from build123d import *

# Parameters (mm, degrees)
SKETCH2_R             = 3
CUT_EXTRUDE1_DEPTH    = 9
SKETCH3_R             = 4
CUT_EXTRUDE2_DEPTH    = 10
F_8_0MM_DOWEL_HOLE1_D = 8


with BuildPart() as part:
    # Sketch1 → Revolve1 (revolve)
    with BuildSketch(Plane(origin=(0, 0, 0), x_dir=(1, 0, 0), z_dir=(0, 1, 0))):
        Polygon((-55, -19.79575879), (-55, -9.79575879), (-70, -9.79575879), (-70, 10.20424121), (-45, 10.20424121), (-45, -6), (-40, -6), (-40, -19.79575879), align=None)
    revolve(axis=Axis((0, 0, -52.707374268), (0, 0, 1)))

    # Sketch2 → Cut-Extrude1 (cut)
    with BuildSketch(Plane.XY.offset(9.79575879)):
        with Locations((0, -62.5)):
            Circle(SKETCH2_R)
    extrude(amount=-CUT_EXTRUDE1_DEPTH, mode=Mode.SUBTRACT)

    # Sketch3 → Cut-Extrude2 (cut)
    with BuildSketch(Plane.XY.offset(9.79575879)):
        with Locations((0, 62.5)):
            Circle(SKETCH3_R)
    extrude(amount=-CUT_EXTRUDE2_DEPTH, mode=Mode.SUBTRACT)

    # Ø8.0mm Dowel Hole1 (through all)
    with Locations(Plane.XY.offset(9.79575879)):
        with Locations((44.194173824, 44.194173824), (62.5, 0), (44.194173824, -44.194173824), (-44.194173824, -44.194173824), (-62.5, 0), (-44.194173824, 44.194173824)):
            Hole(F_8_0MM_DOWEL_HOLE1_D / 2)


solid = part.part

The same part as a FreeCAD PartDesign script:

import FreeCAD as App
import Part
import Sketcher

V = App.Vector
Q = App.Units.Quantity

doc = App.newDocument("Part")
body = doc.addObject("PartDesign::Body", "Body")

# Sketch on XZ plane
sketch1 = body.newObject("Sketcher::SketchObject", "Sketch")
sketch1.AttachmentSupport = (doc.getObject("XZ_Plane"), [""])
sketch1.MapMode = "FlatFace"
sketch1.addGeometry([
    Part.LineSegment(V(-55, 10, 0), V(-55, 20, 0)),  # 0
    Part.LineSegment(V(-55, 20, 0), V(-40, 20, 0)),  # 1
    Part.LineSegment(V(-40, 20, 0), V(-40, 6, 0)),  # 2
    Part.LineSegment(V(-40, 6, 0), V(-45, 6, 0)),  # 3
    Part.LineSegment(V(-45, 6, 0), V(-45, -10, 0)),  # 4
    Part.LineSegment(V(-45, -10, 0), V(-70, -10, 0)),  # 5
    Part.LineSegment(V(-70, -10, 0), V(-70, 10, 0)),  # 6
    Part.LineSegment(V(-70, 10, 0), V(-55, 10, 0)),  # 7
], False)
sketch1.addConstraint([
    Sketcher.Constraint("Coincident", 0, 2, 1, 1),
    Sketcher.Constraint("Coincident", 1, 2, 2, 1),
    Sketcher.Constraint("Coincident", 2, 2, 3, 1),
    Sketcher.Constraint("Coincident", 3, 2, 4, 1),
    Sketcher.Constraint("Coincident", 4, 2, 5, 1),
    Sketcher.Constraint("Coincident", 5, 2, 6, 1),
    Sketcher.Constraint("Coincident", 6, 2, 7, 1),
    Sketcher.Constraint("Coincident", 7, 2, 0, 1),
    Sketcher.Constraint("Vertical", 0),
    Sketcher.Constraint("Horizontal", 1),
    Sketcher.Constraint("Vertical", 2),
    Sketcher.Constraint("Horizontal", 3),
    Sketcher.Constraint("Vertical", 4),
    Sketcher.Constraint("Horizontal", 5),
    Sketcher.Constraint("Vertical", 6),
    Sketcher.Constraint("Horizontal", 7),
    Sketcher.Constraint("Equal", 1, 7),
    Sketcher.Constraint("DistanceX", 1, 1, 1, 2, Q("15 mm")),
    Sketcher.Constraint("DistanceX", 3, 2, 3, 1, Q("5 mm")),
    Sketcher.Constraint("DistanceY", 0, 1, 0, 2, Q("10 mm")),
    Sketcher.Constraint("DistanceY", 6, 1, 6, 2, Q("20 mm")),
    Sketcher.Constraint("DistanceX", 0, 2, -1, 1, Q("55 mm")),
    Sketcher.Constraint("DistanceY", -1, 1, 2, 2, Q("6 mm")),
    Sketcher.Constraint("DistanceY", 2, 2, 2, 1, Q("13.795759 mm")),
])
revolution = body.newObject("PartDesign::Revolution", "Revolution")
revolution.Profile = sketch1
revolution.ReferenceAxis = (sketch1, ["V_Axis"])
revolution.Angle = 360

# Sketch on XY plane
sketch2 = body.newObject("Sketcher::SketchObject", "Sketch001")
sketch2.AttachmentSupport = (doc.getObject("XY_Plane"), [""])
sketch2.MapMode = "FlatFace"
sketch2.AttachmentOffset = App.Placement(V(0, 0, 9.795759), App.Rotation())
sketch2.addGeometry(Part.Circle(V(0, -62.5, 0), V(0, 0, 1), 3), False)
sketch2.addConstraint([
    Sketcher.Constraint("PointOnObject", 0, 3, -2),
    Sketcher.Constraint("Diameter", 0, Q("6 mm")),
    Sketcher.Constraint("DistanceY", 0, 3, -1, 1, Q("62.5 mm")),
])
pocket1 = body.newObject("PartDesign::Pocket", "Pocket")
pocket1.Profile = sketch2
pocket1.Length = 9

# Sketch on XY plane
sketch3 = body.newObject("Sketcher::SketchObject", "Sketch002")
sketch3.AttachmentSupport = (doc.getObject("XY_Plane"), [""])
sketch3.MapMode = "FlatFace"
sketch3.AttachmentOffset = App.Placement(V(0, 0, 9.795759), App.Rotation())
sketch3.addGeometry(Part.Circle(V(0, 62.5, 0), V(0, 0, 1), 4), False)
sketch3.addConstraint([
    Sketcher.Constraint("PointOnObject", 0, 3, -2),
    Sketcher.Constraint("Diameter", 0, Q("8 mm")),
    Sketcher.Constraint("DistanceY", -1, 1, 0, 3, Q("62.5 mm")),
])
pocket2 = body.newObject("PartDesign::Pocket", "Pocket001")
pocket2.Profile = sketch3
pocket2.Length = 10

# Sketch on XY plane
sketch4 = body.newObject("Sketcher::SketchObject", "Sketch003")
sketch4.AttachmentSupport = (doc.getObject("XY_Plane"), [""])
sketch4.MapMode = "FlatFace"
sketch4.AttachmentOffset = App.Placement(V(0, 0, 9.795759), App.Rotation())
sketch4.addGeometry([
    Part.Circle(V(44.2, 44.2, 0), V(0, 0, 1), 4),  # 0
    Part.Circle(V(62.5, 0, 0), V(0, 0, 1), 4),  # 1
    Part.Circle(V(44.2, -44.2, 0), V(0, 0, 1), 4),  # 2
    Part.Circle(V(-44.2, -44.2, 0), V(0, 0, 1), 4),  # 3
    Part.Circle(V(-62.5, 0, 0), V(0, 0, 1), 4),  # 4
    Part.Circle(V(-44.2, 44.2, 0), V(0, 0, 1), 4),  # 5
], False)
sketch4.addConstraint([
    Sketcher.Constraint("Equal", 0, 1),
    Sketcher.Constraint("Equal", 1, 2),
    Sketcher.Constraint("Equal", 2, 3),
    Sketcher.Constraint("Equal", 3, 4),
    Sketcher.Constraint("Equal", 4, 5),
    Sketcher.Constraint("Symmetric", 0, 3, 3, 3, -1, 1),
    Sketcher.Constraint("Symmetric", 1, 3, 4, 3, -1, 1),
    Sketcher.Constraint("Symmetric", 2, 3, 5, 3, -1, 1),
    Sketcher.Constraint("Symmetric", 2, 3, 3, 3, -2),
    Sketcher.Constraint("PointOnObject", 1, 3, -1),
    Sketcher.Constraint("Diameter", 0, Q("8 mm")),
    Sketcher.Constraint("DistanceX", 4, 3, 1, 3, Q("125 mm")),
    Sketcher.Constraint("DistanceX", -1, 1, 0, 3, Q("44.194174 mm")),
    Sketcher.Constraint("DistanceY", -1, 1, 0, 3, Q("44.194174 mm")),
])
doc.recompute()
hole = body.newObject("PartDesign::Hole", "Hole")
hole.Profile = sketch4
hole.ThreadType = "None"
hole.Diameter = 8
hole.DepthType = "ThroughAll"

doc.recompute()
